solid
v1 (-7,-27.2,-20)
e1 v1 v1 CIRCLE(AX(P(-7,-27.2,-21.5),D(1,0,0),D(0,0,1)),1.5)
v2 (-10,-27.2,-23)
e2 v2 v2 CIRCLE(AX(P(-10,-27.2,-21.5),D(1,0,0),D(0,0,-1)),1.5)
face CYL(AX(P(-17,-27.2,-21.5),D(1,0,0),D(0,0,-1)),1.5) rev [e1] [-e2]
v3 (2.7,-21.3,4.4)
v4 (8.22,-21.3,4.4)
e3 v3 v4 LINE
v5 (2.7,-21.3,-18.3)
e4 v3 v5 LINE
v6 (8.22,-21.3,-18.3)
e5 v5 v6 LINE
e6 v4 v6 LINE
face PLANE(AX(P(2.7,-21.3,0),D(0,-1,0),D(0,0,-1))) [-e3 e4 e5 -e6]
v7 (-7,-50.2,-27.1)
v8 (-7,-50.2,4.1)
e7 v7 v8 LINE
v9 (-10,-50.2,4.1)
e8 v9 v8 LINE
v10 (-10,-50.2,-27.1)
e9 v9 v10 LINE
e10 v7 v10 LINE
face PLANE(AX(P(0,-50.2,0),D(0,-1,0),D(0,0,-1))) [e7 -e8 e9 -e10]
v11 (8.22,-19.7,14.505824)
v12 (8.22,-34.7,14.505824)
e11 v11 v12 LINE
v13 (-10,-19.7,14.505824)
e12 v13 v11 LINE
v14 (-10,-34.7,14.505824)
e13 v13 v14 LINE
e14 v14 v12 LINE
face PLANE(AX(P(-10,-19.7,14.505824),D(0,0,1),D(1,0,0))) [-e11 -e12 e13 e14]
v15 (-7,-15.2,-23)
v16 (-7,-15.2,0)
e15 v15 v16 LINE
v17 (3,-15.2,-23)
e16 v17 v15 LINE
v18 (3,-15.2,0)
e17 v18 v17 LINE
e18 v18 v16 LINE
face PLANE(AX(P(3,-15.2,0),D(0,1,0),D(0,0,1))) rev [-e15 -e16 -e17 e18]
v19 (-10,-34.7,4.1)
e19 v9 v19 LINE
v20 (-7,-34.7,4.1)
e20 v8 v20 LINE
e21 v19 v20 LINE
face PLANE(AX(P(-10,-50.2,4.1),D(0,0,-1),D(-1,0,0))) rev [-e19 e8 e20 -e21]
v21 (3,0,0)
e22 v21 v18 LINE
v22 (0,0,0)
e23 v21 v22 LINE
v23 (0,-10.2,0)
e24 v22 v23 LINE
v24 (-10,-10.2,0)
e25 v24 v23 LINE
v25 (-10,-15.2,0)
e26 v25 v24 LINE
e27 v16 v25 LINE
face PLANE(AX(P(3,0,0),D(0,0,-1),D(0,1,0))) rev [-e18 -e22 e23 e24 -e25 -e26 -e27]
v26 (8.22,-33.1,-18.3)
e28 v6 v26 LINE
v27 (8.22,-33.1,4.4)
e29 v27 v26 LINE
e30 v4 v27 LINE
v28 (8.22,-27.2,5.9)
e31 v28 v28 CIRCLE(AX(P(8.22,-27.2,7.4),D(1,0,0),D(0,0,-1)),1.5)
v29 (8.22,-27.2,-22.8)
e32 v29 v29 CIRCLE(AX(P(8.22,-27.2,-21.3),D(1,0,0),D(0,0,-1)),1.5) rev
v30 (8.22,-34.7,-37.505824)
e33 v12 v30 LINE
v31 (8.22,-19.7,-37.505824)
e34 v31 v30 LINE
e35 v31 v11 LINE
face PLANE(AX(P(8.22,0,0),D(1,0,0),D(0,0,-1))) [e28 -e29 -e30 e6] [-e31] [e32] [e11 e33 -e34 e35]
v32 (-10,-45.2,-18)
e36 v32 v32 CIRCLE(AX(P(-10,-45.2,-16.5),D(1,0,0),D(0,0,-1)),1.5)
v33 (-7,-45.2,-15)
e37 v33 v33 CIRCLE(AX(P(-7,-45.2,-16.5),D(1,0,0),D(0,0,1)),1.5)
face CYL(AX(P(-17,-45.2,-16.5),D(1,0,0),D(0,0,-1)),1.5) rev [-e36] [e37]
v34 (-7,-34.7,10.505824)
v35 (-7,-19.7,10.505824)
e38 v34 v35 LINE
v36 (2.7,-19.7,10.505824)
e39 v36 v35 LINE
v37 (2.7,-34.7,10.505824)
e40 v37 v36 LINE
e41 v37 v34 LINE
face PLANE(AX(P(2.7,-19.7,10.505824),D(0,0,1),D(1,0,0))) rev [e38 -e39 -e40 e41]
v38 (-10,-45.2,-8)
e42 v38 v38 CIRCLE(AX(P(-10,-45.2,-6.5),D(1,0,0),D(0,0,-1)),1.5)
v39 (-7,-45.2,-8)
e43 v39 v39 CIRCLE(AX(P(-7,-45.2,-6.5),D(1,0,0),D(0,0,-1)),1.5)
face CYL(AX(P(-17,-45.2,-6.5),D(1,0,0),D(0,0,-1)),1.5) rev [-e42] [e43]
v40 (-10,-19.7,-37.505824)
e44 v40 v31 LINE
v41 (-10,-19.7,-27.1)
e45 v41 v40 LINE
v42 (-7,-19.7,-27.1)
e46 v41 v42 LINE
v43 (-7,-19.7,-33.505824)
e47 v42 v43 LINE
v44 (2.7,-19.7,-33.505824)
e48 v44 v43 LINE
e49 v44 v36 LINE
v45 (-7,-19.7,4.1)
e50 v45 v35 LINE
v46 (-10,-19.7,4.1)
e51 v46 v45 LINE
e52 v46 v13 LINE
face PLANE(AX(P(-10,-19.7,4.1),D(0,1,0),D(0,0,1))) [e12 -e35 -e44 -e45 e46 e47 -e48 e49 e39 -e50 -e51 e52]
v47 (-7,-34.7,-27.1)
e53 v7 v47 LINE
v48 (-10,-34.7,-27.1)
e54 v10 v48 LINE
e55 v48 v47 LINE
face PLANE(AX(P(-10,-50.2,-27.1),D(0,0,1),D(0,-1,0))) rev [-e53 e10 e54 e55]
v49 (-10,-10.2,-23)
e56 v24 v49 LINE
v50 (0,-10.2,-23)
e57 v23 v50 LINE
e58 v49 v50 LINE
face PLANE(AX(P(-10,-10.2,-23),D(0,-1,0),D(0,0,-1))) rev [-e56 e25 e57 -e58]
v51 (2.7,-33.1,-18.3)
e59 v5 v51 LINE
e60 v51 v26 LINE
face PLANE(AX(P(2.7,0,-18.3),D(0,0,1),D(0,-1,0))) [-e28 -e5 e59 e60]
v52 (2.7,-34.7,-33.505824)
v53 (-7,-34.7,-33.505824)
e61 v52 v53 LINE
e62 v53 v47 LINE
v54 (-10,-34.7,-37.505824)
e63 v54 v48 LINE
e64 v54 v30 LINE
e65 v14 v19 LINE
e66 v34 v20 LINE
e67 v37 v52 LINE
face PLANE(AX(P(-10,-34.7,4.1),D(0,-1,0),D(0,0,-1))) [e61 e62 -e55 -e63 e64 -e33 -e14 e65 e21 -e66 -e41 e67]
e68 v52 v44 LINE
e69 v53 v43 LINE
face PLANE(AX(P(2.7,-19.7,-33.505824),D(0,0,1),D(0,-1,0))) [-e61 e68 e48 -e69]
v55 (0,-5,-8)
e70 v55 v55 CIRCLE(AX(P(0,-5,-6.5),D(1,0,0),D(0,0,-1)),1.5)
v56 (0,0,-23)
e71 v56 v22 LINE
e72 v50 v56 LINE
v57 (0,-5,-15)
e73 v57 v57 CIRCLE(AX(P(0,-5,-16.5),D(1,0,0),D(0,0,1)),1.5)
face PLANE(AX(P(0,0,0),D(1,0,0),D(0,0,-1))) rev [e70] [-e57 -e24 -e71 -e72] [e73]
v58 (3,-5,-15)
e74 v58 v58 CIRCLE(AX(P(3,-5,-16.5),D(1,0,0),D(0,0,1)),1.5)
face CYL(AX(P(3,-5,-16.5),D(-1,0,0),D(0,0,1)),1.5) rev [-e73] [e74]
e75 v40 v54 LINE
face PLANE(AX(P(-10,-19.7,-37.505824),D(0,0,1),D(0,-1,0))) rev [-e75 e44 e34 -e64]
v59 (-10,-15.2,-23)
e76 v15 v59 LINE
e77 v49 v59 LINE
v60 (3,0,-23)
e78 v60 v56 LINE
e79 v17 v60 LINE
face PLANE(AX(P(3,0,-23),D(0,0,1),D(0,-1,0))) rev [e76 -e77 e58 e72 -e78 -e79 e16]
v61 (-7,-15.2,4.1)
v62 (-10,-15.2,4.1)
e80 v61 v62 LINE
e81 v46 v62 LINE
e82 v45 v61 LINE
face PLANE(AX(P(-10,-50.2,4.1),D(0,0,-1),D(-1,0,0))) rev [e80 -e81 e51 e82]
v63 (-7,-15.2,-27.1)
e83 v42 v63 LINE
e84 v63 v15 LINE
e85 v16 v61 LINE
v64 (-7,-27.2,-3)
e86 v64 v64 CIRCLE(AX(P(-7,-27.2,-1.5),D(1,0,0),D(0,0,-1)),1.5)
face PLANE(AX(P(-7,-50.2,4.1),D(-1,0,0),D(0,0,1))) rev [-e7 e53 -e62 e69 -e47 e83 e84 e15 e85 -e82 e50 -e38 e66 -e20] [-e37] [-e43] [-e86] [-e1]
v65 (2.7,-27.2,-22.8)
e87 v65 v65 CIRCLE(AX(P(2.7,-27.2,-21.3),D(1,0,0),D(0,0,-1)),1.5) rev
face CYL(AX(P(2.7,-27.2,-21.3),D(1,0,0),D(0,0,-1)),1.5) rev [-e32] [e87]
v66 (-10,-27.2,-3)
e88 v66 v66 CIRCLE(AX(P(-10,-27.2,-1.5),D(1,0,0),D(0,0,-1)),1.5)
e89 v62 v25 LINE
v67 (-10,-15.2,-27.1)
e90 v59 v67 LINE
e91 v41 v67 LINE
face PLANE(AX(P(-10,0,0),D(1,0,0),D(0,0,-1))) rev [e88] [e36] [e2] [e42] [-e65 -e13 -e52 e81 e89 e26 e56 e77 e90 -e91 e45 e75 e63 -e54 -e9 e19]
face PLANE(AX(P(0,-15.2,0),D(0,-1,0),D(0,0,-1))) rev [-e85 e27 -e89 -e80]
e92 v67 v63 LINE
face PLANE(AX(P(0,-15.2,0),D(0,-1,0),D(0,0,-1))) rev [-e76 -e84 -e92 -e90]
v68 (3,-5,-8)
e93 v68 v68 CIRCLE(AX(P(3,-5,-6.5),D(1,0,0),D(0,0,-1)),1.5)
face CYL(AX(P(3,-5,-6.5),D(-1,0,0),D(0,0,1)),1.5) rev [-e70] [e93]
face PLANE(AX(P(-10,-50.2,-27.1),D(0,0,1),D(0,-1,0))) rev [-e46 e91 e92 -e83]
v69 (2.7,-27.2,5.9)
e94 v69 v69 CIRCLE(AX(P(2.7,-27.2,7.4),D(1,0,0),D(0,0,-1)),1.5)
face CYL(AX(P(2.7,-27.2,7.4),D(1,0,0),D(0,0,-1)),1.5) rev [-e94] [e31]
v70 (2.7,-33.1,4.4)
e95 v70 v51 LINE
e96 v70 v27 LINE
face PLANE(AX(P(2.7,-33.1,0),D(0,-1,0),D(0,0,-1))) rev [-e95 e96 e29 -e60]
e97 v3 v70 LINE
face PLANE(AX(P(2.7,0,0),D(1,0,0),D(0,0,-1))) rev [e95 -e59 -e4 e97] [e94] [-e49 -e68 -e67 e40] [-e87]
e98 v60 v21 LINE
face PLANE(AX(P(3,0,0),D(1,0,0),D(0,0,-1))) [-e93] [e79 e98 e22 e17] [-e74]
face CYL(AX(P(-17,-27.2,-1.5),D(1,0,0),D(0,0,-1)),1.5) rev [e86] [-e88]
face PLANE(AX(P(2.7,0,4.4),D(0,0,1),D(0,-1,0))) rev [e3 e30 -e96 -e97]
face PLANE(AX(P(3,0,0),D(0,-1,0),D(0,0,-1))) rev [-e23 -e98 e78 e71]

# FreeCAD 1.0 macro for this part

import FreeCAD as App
import Part
import Sketcher
Q = App.Units.Quantity


def edges_at(feature, points):
    """Names of the edges that pass closest to the given points."""
    edges = feature.Shape.Edges
    near = lambda p: min(range(len(edges)), key=lambda i: edges[i].distToShape(Part.Vertex(*p))[0])
    return sorted({f"Edge{near(p) + 1}" for p in points})


def add_polygon(sketch, points):
    """Adds a closed chain of lines whose ends are joined by coincident constraints."""
    first, n = sketch.GeometryCount, len(points)
    for a, b in zip(points, points[1:] + points[:1]):
        sketch.addGeometry(Part.LineSegment(App.Vector(*a, 0), App.Vector(*b, 0)), False)
    for i in range(n):
        sketch.addConstraint(Sketcher.Constraint("Coincident", first + i, 2, first + (i + 1) % n, 1))

doc = App.newDocument("Part")
body = doc.addObject("PartDesign::Body", "Body")

sketch1 = body.newObject("Sketcher::SketchObject", "Sketch")
sketch1.AttachmentSupport = (doc.getObject("YZ_Plane"), [""])
sketch1.MapMode = "FlatFace"
add_polygon(sketch1, [(0, 0), (-15.2, 0), (-15.2, -23), (0, -23)])
sketch1.addGeometry(Part.Circle(App.Vector(-5, -6.5, 0), App.Vector(0, 0, 1), 1.5), False)
sketch1.addGeometry(Part.Circle(App.Vector(-5, -16.5, 0), App.Vector(0, 0, 1), 1.5), False)
sketch1.addConstraint(Sketcher.Constraint("Horizontal", 0))
sketch1.addConstraint(Sketcher.Constraint("Vertical", 1))
sketch1.addConstraint(Sketcher.Constraint("Horizontal", 2))
sketch1.addConstraint(Sketcher.Constraint("Vertical", 3))
sketch1.addConstraint(Sketcher.Constraint("Coincident", 3, 2, -1, 1))
sketch1.addConstraint(Sketcher.Constraint("Equal", 4, 5))
sketch1.addConstraint(Sketcher.Constraint("Vertical", 4, 3, 5, 3))
sketch1.addConstraint(Sketcher.Constraint("Diameter", 4, Q("3 mm")))
sketch1.addConstraint(Sketcher.Constraint("DistanceY", 1, 2, 1, 1, Q("23 mm")))
sketch1.addConstraint(Sketcher.Constraint("DistanceX", 0, 2, 0, 1, Q("15.2 mm")))
sketch1.addConstraint(Sketcher.Constraint("DistanceX", 4, 3, -1, 1, Q("5 mm")))
sketch1.addConstraint(Sketcher.Constraint("DistanceY", 5, 3, 4, 3, Q("10 mm")))
sketch1.addConstraint(Sketcher.Constraint("DistanceY", 4, 3, -1, 1, Q("6.5 mm")))
pad1 = body.newObject("PartDesign::Pad", "Pad")
pad1.Profile = sketch1
pad1.Length = 3

sketch2 = body.newObject("Sketcher::SketchObject", "Sketch001")
sketch2.AttachmentSupport = (doc.getObject("YZ_Plane"), [""])
sketch2.MapMode = "FlatFace"
add_polygon(sketch2, [(-10, -23), (-15, -23), (-15, 0), (-10, 0)])
sketch2.addConstraint(Sketcher.Constraint("Horizontal", 0))
sketch2.addConstraint(Sketcher.Constraint("Vertical", 1))
sketch2.addConstraint(Sketcher.Constraint("Horizontal", 2))
sketch2.addConstraint(Sketcher.Constraint("Vertical", 3))
sketch2.addConstraint(Sketcher.Constraint("PointOnObject", 1, 2, -1))
sketch2.addConstraint(Sketcher.Constraint("DistanceX", 0, 2, 0, 1, Q("5 mm")))
sketch2.addConstraint(Sketcher.Constraint("DistanceY", 1, 1, 1, 2, Q("23 mm")))
sketch2.addConstraint(Sketcher.Constraint("DistanceX", 0, 2, -1, 1, Q("15.2 mm")))
pad2 = body.newObject("PartDesign::Pad", "Pad001")
pad2.Profile = sketch2
pad2.Length = 10
pad2.Reversed = True

sketch3 = body.newObject("Sketcher::SketchObject", "Sketch002")
sketch3.AttachmentSupport = (doc.getObject("XZ_Plane"), [""])
sketch3.MapMode = "FlatFace"
sketch3.AttachmentOffset = App.Placement(App.Vector(0, 0, 15.2), App.Rotation())
add_polygon(sketch3, [(-10, 4.1), (-10, -27.1), (-7, -27.1), (-7, 4.1)])
sketch3.addConstraint(Sketcher.Constraint("Vertical", 0))
sketch3.addConstraint(Sketcher.Constraint("Horizontal", 1))
sketch3.addConstraint(Sketcher.Constraint("Vertical", 2))
sketch3.addConstraint(Sketcher.Constraint("Horizontal", 3))
sketch3.addConstraint(Sketcher.Constraint("DistanceX", 1, 1, 1, 2, Q("3 mm")))
sketch3.addConstraint(Sketcher.Constraint("DistanceY", 0, 2, 0, 1, Q("31.2 mm")))
sketch3.addConstraint(Sketcher.Constraint("DistanceX", 0, 2, -1, 1, Q("10 mm")))
sketch3.addConstraint(Sketcher.Constraint("DistanceY", 0, 2, -1, 1, Q("27.1 mm")))
pad3 = body.newObject("PartDesign::Pad", "Pad002")
pad3.Profile = sketch3
pad3.Length = 35
doc.recompute()

fillet = body.newObject("PartDesign::Fillet", "Fillet")
fillet.Base = (pad3, edges_at(pad3, [(-8.5, -50.2, -27.1), (-8.5, -50.2, 4.1)]))
fillet.Radius = 10

sketch4 = body.newObject("Sketcher::SketchObject", "Sketch003")
sketch4.AttachmentSupport = (doc.getObject("YZ_Plane"), [""])
sketch4.MapMode = "FlatFace"
sketch4.AttachmentOffset = App.Placement(App.Vector(0, 0, -7), App.Rotation())
add_polygon(sketch4, [(-20, 15), (-35, 15), (-35, 4), (-20, 4)])
sketch4.addConstraint(Sketcher.Constraint("Horizontal", 0))
sketch4.addConstraint(Sketcher.Constraint("Vertical", 1))
sketch4.addConstraint(Sketcher.Constraint("Horizontal", 2))
sketch4.addConstraint(Sketcher.Constraint("Vertical", 3))
sketch4.addConstraint(Sketcher.Constraint("DistanceX", 0, 2, 0, 1, Q("15 mm")))
sketch4.addConstraint(Sketcher.Constraint("DistanceX", 0, 2, -1, 1, Q("34.7 mm")))
sketch4.addConstraint(Sketcher.Constraint("DistanceY", -1, 1, 1, 2, Q("4.1 mm")))
sketch4.addConstraint(Sketcher.Constraint("DistanceY", 1, 2, 1, 1, Q("10.405824 mm")))
pad4 = body.newObject("PartDesign::Pad", "Pad003")
pad4.Profile = sketch4
pad4.Length = 3
pad4.Reversed = True

sketch5 = body.newObject("Sketcher::SketchObject", "Sketch004")
sketch5.AttachmentSupport = (doc.getObject("YZ_Plane"), [""])
sketch5.MapMode = "FlatFace"
sketch5.AttachmentOffset = App.Placement(App.Vector(0, 0, -7), App.Rotation())
add_polygon(sketch5, [(-19.7, 14.5), (-34.7, 14.5), (-34.7, 10.5), (-19.7, 10.5)])
sketch5.addConstraint(Sketcher.Constraint("Horizontal", 0))
sketch5.addConstraint(Sketcher.Constraint("Vertical", 1))
sketch5.addConstraint(Sketcher.Constraint("Horizontal", 2))
sketch5.addConstraint(Sketcher.Constraint("Vertical", 3))
sketch5.addConstraint(Sketcher.Constraint("DistanceX", 0, 2, 0, 1, Q("15 mm")))
sketch5.addConstraint(Sketcher.Constraint("DistanceY", 1, 2, 1, 1, Q("4 mm")))
sketch5.addConstraint(Sketcher.Constraint("DistanceX", 0, 2, -1, 1, Q("34.7 mm")))
sketch5.addConstraint(Sketcher.Constraint("DistanceY", -1, 1, 0, 2, Q("14.505824 mm")))
pad5 = body.newObject("PartDesign::Pad", "Pad004")
pad5.Profile = sketch5
pad5.Length = 9.7

sketch6 = body.newObject("Sketcher::SketchObject", "Sketch005")
sketch6.AttachmentSupport = (doc.getObject("YZ_Plane"), [""])
sketch6.MapMode = "FlatFace"
sketch6.AttachmentOffset = App.Placement(App.Vector(0, 0, 2.7), App.Rotation())
add_polygon(sketch6, [(-20, 15), (-35, 15), (-35, -11), (-20, -11)])
sketch6.addConstraint(Sketcher.Constraint("Horizontal", 0))
sketch6.addConstraint(Sketcher.Constraint("Vertical", 1))
sketch6.addConstraint(Sketcher.Constraint("Horizontal", 2))
sketch6.addConstraint(Sketcher.Constraint("Vertical", 3))
sketch6.addConstraint(Sketcher.Constraint("DistanceX", 0, 2, 0, 1, Q("15 mm")))
sketch6.addConstraint(Sketcher.Constraint("DistanceX", 0, 2, -1, 1, Q("34.7 mm")))
sketch6.addConstraint(Sketcher.Constraint("DistanceY", 1, 2, -1, 1, Q("11.5 mm")))
sketch6.addConstraint(Sketcher.Constraint("DistanceY", 1, 2, 1, 1, Q("26.005824 mm")))
pad6 = body.newObject("PartDesign::Pad", "Pad005")
pad6.Profile = sketch6
pad6.Length = 5.52
doc.recompute()

datumplane = body.newObject("PartDesign::Plane", "DatumPlane")
datumplane.AttachmentSupport = (doc.getObject("XY_Plane"), [""])
datumplane.MapMode = "FlatFace"
datumplane.AttachmentOffset = App.Placement(App.Vector(0, 0, -11.5), App.Rotation())
mirrored = body.newObject("PartDesign::Mirrored", "Mirrored")
mirrored.Originals = [pad2, pad3, pad4, pad5, pad6]
mirrored.MirrorPlane = (datumplane, [""])
body.Tip = mirrored

sketch7 = body.newObject("Sketcher::SketchObject", "Sketch006")
sketch7.AttachmentSupport = (doc.getObject("YZ_Plane"), [""])
sketch7.MapMode = "FlatFace"
sketch7.AttachmentOffset = App.Placement(App.Vector(0, 0, 8.22), App.Rotation())
add_polygon(sketch7, [(-21.3, -18.3), (-21.3, 4.4), (-33.1, 4.4), (-33.1, -18.3)])
sketch7.addGeometry(Part.Circle(App.Vector(-27.2, 7.4, 0), App.Vector(0, 0, 1), 1.5), False)
sketch7.addGeometry(Part.Circle(App.Vector(-27.2, -21.3, 0), App.Vector(0, 0, 1), 1.5), False)
sketch7.addConstraint(Sketcher.Constraint("Vertical", 0))
sketch7.addConstraint(Sketcher.Constraint("Horizontal", 1))
sketch7.addConstraint(Sketcher.Constraint("Vertical", 2))
sketch7.addConstraint(Sketcher.Constraint("Horizontal", 3))
sketch7.addConstraint(Sketcher.Constraint("Equal", 4, 5))
sketch7.addConstraint(Sketcher.Constraint("Vertical", 4, 3, 5, 3))
sketch7.addConstraint(Sketcher.Constraint("Diameter", 4, Q("3 mm")))
sketch7.addConstraint(Sketcher.Constraint("DistanceX", 1, 2, 1, 1, Q("11.8 mm")))
sketch7.addConstraint(Sketcher.Constraint("DistanceY", 0, 1, 0, 2, Q("22.7 mm")))
sketch7.addConstraint(Sketcher.Constraint("DistanceY", 0, 2, 4, 3, Q("3 mm")))
sketch7.addConstraint(Sketcher.Constraint("DistanceY", 5, 3, 2, 2, Q("3 mm")))
sketch7.addConstraint(Sketcher.Constraint("DistanceX", 4, 3, -1, 1, Q("27.2 mm")))
sketch7.addConstraint(Sketcher.Constraint("DistanceY", -1, 1, 4, 3, Q("7.4 mm")))
sketch7.addConstraint(Sketcher.Constraint("DistanceX", 0, 2, -1, 1, Q("21.3 mm")))
pocket1 = body.newObject("PartDesign::Pocket", "Pocket")
pocket1.Profile = sketch7
pocket1.Length = 5.52

sketch8 = body.newObject("Sketcher::SketchObject", "Sketch007")
sketch8.AttachmentSupport = (doc.getObject("YZ_Plane"), [""])
sketch8.MapMode = "FlatFace"
sketch8.AttachmentOffset = App.Placement(App.Vector(0, 0, -7), App.Rotation())
sketch8.addGeometry(Part.Circle(App.Vector(-45.2, -6.5, 0), App.Vector(0, 0, 1), 1.5), False)
sketch8.addGeometry(Part.Circle(App.Vector(-27.2, -1.5, 0), App.Vector(0, 0, 1), 1.5), False)
sketch8.addGeometry(Part.Circle(App.Vector(-45.2, -16.5, 0), App.Vector(0, 0, 1), 1.5), False)
sketch8.addGeometry(Part.Circle(App.Vector(-27.2, -21.5, 0), App.Vector(0, 0, 1), 1.5), False)
sketch8.addConstraint(Sketcher.Constraint("Equal", 0, 1))
sketch8.addConstraint(Sketcher.Constraint("Equal", 1, 2))
sketch8.addConstraint(Sketcher.Constraint("Equal", 2, 3))
sketch8.addConstraint(Sketcher.Constraint("Vertical", 0, 3, 2, 3))
sketch8.addConstraint(Sketcher.Constraint("Vertical", 1, 3, 3, 3))
sketch8.addConstraint(Sketcher.Constraint("Diameter", 0, Q("3 mm")))
sketch8.addConstraint(Sketcher.Constraint("DistanceX", 0, 3, 1, 3, Q("18 mm")))
sketch8.addConstraint(Sketcher.Constraint("DistanceY", 0, 3, 1, 3, Q("5 mm")))
sketch8.addConstraint(Sketcher.Constraint("DistanceY", 2, 3, 0, 3, Q("10 mm")))
sketch8.addConstraint(Sketcher.Constraint("DistanceY", 3, 3, 2, 3, Q("5 mm")))
sketch8.addConstraint(Sketcher.Constraint("DistanceX", 0, 3, -1, 1, Q("45.2 mm")))
sketch8.addConstraint(Sketcher.Constraint("DistanceY", 0, 3, -1, 1, Q("6.5 mm")))
pocket2 = body.newObject("PartDesign::Pocket", "Pocket001")
pocket2.Profile = sketch8
pocket2.Length = 10

doc.recompute()
